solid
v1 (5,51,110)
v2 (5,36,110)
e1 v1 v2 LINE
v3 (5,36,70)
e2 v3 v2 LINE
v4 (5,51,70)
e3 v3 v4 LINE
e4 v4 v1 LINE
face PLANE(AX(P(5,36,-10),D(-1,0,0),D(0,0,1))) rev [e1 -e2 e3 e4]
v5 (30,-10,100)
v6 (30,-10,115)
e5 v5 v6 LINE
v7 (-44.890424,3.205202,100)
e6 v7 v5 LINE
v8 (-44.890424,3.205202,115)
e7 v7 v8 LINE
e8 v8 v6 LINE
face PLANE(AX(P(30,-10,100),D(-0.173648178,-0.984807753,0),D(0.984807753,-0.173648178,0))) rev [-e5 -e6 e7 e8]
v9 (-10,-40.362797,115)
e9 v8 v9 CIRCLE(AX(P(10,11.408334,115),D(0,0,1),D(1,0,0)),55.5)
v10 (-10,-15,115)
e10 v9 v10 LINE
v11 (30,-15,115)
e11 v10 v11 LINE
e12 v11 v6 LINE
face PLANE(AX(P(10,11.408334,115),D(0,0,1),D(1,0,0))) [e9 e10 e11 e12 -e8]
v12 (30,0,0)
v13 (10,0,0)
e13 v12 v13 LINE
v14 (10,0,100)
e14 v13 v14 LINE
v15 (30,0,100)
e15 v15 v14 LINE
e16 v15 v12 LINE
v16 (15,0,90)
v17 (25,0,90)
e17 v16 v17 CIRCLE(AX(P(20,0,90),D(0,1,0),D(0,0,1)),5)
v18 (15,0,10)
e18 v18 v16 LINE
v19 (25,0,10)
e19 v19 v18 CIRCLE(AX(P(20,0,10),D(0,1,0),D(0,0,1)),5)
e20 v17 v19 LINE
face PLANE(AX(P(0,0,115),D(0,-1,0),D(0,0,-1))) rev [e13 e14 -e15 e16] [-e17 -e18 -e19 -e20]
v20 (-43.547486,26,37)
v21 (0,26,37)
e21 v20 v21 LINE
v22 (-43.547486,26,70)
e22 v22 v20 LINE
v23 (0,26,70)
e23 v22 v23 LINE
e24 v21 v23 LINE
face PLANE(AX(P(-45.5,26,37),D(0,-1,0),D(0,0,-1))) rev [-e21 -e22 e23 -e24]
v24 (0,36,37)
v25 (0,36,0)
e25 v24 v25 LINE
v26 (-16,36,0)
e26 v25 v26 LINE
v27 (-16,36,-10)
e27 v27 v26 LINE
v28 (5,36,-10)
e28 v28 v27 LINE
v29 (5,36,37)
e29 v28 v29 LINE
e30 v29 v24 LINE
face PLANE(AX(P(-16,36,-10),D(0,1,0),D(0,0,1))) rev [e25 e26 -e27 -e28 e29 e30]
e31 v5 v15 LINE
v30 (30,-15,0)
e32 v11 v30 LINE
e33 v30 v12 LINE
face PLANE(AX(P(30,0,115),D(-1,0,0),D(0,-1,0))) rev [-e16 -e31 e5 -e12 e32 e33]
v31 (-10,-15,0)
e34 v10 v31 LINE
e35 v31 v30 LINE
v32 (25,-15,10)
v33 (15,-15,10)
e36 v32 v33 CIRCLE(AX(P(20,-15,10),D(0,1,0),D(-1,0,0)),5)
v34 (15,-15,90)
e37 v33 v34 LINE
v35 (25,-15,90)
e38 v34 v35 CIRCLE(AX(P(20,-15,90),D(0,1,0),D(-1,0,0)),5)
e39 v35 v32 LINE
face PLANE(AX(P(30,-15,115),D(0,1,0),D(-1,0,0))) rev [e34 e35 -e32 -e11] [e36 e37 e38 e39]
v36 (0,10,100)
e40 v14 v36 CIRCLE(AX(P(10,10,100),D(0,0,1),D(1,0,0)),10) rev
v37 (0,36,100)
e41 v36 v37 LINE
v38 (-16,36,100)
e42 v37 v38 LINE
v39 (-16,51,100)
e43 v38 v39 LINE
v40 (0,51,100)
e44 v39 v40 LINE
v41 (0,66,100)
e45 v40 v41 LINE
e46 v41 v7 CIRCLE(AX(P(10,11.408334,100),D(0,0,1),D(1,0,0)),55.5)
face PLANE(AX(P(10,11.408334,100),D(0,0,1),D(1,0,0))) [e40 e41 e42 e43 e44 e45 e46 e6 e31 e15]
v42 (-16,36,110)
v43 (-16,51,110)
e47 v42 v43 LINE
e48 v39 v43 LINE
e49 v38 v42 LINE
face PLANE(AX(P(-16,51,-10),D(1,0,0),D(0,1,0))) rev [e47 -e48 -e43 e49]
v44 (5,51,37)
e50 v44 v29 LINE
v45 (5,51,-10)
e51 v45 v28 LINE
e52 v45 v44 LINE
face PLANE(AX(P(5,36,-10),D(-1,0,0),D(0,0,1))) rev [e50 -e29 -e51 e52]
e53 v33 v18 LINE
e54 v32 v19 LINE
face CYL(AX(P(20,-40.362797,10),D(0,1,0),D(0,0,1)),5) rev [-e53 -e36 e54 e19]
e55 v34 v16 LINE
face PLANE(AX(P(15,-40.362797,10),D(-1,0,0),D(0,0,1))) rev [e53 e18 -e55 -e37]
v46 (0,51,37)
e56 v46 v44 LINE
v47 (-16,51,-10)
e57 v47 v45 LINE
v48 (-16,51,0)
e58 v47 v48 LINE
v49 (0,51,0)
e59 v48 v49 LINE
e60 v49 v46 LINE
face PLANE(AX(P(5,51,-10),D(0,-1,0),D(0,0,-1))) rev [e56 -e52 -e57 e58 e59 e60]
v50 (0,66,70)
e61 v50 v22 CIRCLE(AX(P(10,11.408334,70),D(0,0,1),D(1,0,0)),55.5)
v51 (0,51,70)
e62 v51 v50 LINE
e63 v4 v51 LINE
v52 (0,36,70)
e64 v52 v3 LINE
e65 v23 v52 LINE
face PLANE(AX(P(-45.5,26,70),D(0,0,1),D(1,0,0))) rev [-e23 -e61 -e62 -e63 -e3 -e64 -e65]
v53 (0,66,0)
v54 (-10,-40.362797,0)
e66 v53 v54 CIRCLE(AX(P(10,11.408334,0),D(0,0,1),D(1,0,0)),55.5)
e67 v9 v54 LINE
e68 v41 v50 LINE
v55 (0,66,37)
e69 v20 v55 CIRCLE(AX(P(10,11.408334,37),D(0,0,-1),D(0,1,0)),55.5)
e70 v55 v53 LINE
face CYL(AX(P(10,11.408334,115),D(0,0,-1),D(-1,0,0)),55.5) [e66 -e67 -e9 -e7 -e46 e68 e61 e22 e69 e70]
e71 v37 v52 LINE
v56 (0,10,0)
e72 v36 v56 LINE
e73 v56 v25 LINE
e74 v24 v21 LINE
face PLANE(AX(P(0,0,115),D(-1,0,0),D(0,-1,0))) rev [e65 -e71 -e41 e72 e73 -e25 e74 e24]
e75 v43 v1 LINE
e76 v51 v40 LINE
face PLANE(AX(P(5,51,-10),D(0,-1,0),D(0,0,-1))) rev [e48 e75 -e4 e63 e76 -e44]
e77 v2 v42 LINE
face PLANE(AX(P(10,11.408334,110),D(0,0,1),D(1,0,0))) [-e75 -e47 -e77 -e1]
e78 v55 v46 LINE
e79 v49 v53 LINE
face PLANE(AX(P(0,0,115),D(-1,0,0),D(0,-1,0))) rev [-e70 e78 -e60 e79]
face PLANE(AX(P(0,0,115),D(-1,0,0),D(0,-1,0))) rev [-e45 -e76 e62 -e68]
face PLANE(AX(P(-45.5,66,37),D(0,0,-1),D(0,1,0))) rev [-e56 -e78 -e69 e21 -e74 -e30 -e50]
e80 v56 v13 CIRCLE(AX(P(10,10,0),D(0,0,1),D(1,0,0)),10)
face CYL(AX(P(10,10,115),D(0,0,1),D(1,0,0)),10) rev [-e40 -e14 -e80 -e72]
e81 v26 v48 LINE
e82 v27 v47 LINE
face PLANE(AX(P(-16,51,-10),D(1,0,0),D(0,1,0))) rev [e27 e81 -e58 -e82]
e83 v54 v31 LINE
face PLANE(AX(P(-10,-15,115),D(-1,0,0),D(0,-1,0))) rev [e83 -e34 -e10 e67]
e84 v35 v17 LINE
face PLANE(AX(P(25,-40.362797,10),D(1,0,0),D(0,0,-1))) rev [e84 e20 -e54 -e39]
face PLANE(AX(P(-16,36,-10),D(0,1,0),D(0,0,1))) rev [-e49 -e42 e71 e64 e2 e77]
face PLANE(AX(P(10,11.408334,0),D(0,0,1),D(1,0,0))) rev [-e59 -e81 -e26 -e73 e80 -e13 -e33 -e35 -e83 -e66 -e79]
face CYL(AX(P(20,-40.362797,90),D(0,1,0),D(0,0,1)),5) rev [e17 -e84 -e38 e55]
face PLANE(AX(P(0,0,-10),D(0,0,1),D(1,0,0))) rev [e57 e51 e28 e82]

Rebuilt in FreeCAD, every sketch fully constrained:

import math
import FreeCAD as App
import Part
import Sketcher
from FreeCAD import Vector
Q = App.Units.Quantity


def edges_at(feature, points):
    """Names of the edges that pass closest to the given points."""
    edges = feature.Shape.Edges
    near = lambda p: min(range(len(edges)), key=lambda i: edges[i].distToShape(Part.Vertex(*p))[0])
    return sorted({f"Edge{near(p) + 1}" for p in points})


def add_polygon(sketch, points):
    """Adds a closed chain of lines whose ends are joined by coincident constraints."""
    first, n = sketch.GeometryCount, len(points)
    for a, b in zip(points, points[1:] + points[:1]):
        sketch.addGeometry(Part.LineSegment(App.Vector(*a, 0), App.Vector(*b, 0)), False)
    for i in range(n):
        sketch.addConstraint(Sketcher.Constraint("Coincident", first + i, 2, first + (i + 1) % n, 1))

doc = App.newDocument("Part")
body = doc.addObject("PartDesign::Body", "Body")

sketch1 = doc.addObject("Sketcher::SketchObject", "Sketch")
body.addObject(sketch1)
sketch1.AttachmentSupport = (doc.XY_Plane, [""])
sketch1.MapMode = "FlatFace"
sketch1.addGeometry(Part.LineSegment(Vector(0, 0, 0), Vector(0, 66, 0)), False)
sketch1.addGeometry(Part.ArcOfCircle(Part.Circle(Vector(10, 11, 0), Vector(0, 0, 1), 56), math.radians(100), math.radians(249)), False)
sketch1.addGeometry(Part.LineSegment(Vector(-10, -40, 0), Vector(-10, -15, 0)), False)
sketch1.addGeometry(Part.LineSegment(Vector(-10, -15, 0), Vector(30, -15, 0)), False)
sketch1.addGeometry(Part.LineSegment(Vector(30, -15, 0), Vector(30, 0, 0)), False)
sketch1.addGeometry(Part.LineSegment(Vector(30, 0, 0), Vector(0, 0, 0)), False)
sketch1.addConstraint(Sketcher.Constraint("Coincident", 0, 2, 1, 1))
sketch1.addConstraint(Sketcher.Constraint("Coincident", 1, 2, 2, 1))
sketch1.addConstraint(Sketcher.Constraint("Coincident", 2, 2, 3, 1))
sketch1.addConstraint(Sketcher.Constraint("Coincident", 3, 2, 4, 1))
sketch1.addConstraint(Sketcher.Constraint("Coincident", 4, 2, 5, 1))
sketch1.addConstraint(Sketcher.Constraint("Coincident", 5, 2, 0, 1))
sketch1.addConstraint(Sketcher.Constraint("Vertical", 0))
sketch1.addConstraint(Sketcher.Constraint("Vertical", 2))
sketch1.addConstraint(Sketcher.Constraint("Horizontal", 3))
sketch1.addConstraint(Sketcher.Constraint("Vertical", 4))
sketch1.addConstraint(Sketcher.Constraint("Horizontal", 5))
sketch1.addConstraint(Sketcher.Constraint("Coincident", 5, 2, -1, 1))
sketch1.addConstraint(Sketcher.Constraint("Radius", 1, 55.5))
sketch1.addConstraint(Sketcher.Constraint("DistanceX", 3, 1, 3, 2, 40.0))
sketch1.addConstraint(Sketcher.Constraint("DistanceX", 5, 2, 5, 1, 30.0))
sketch1.addConstraint(Sketcher.Constraint("DistanceY", 0, 1, 0, 2, 66.0))
sketch1.addConstraint(Sketcher.Constraint("DistanceY", 4, 1, 4, 2, 15.0))
sketch1.addConstraint(Sketcher.Constraint("DistanceX", -1, 1, 1, 3, 10.0))
pad1 = doc.addObject("PartDesign::Pad", "Pad")
body.addObject(pad1)
pad1.Profile = sketch1
pad1.Length = 115

sketch2 = doc.addObject("Sketcher::SketchObject", "Sketch001")
body.addObject(sketch2)
sketch2.AttachmentSupport = (doc.XY_Plane, [""])
sketch2.MapMode = "FlatFace"
sketch2.AttachmentOffset = App.Placement(Vector(0, 0, 115), App.Rotation())
sketch2.addGeometry(Part.LineSegment(Vector(-45, 3, 0), Vector(30, -10, 0)), False)
sketch2.addGeometry(Part.LineSegment(Vector(30, -10, 0), Vector(30, 0, 0)), False)
sketch2.addGeometry(Part.LineSegment(Vector(30, 0, 0), Vector(0, 0, 0)), False)
sketch2.addGeometry(Part.LineSegment(Vector(0, 0, 0), Vector(0, 66, 0)), False)
sketch2.addGeometry(Part.ArcOfCircle(Part.Circle(Vector(10, 11, 0), Vector(0, 0, 1), 56), math.radians(100), math.radians(188)), False)
sketch2.addConstraint(Sketcher.Constraint("Coincident", 0, 2, 1, 1))
sketch2.addConstraint(Sketcher.Constraint("Coincident", 1, 2, 2, 1))
sketch2.addConstraint(Sketcher.Constraint("Coincident", 2, 2, 3, 1))
sketch2.addConstraint(Sketcher.Constraint("Coincident", 3, 2, 4, 1))
sketch2.addConstraint(Sketcher.Constraint("Coincident", 4, 2, 0, 1))
sketch2.addConstraint(Sketcher.Constraint("Vertical", 1))
sketch2.addConstraint(Sketcher.Constraint("Horizontal", 2))
sketch2.addConstraint(Sketcher.Constraint("Vertical", 3))
sketch2.addConstraint(Sketcher.Constraint("Coincident", 2, 2, -1, 1))
sketch2.addConstraint(Sketcher.Constraint("Radius", 4, 55.5))
sketch2.addConstraint(Sketcher.Constraint("DistanceX", 2, 2, 2, 1, 30.0))
sketch2.addConstraint(Sketcher.Constraint("DistanceY", 1, 1, 1, 2, 10.0))
sketch2.addConstraint(Sketcher.Constraint("DistanceY", 3, 1, 3, 2, 66.0))
sketch2.addConstraint(Sketcher.Constraint("Angle", 0, Q("-10 deg")))
sketch2.addConstraint(Sketcher.Constraint("DistanceX", -1, 1, 4, 3, 10.0))
pocket1 = doc.addObject("PartDesign::Pocket", "Pocket")
body.addObject(pocket1)
pocket1.Profile = sketch2
pocket1.Length = 15

sketch3 = doc.addObject("Sketcher::SketchObject", "Sketch002")
body.addObject(sketch3)
sketch3.AttachmentSupport = (doc.XY_Plane, [""])
sketch3.MapMode = "FlatFace"
add_polygon(sketch3, [(5, 51), (5, 36), (-16, 36), (-16, 51)])
sketch3.addConstraint(Sketcher.Constraint("Vertical", 0))
sketch3.addConstraint(Sketcher.Constraint("Horizontal", 1))
sketch3.addConstraint(Sketcher.Constraint("Vertical", 2))
sketch3.addConstraint(Sketcher.Constraint("Horizontal", 3))
sketch3.addConstraint(Sketcher.Constraint("DistanceX", 1, 2, 1, 1, 21.0))
sketch3.addConstraint(Sketcher.Constraint("DistanceY", 0, 2, 0, 1, 15.0))
sketch3.addConstraint(Sketcher.Constraint("DistanceX", -1, 1, 0, 2, 5.0))
sketch3.addConstraint(Sketcher.Constraint("DistanceY", -1, 1, 0, 2, 36.0))
pad2 = doc.addObject("PartDesign::Pad", "Pad001")
body.addObject(pad2)
pad2.Profile = sketch3
pad2.Type = "TwoLengths"
pad2.Length = 10
pad2.Length2 = 110
pad2.Reversed = True

sketch4 = doc.addObject("Sketcher::SketchObject", "Sketch003")
body.addObject(sketch4)
sketch4.AttachmentSupport = (doc.YZ_Plane, [""])
sketch4.MapMode = "FlatFace"
add_polygon(sketch4, [(66, 70), (26, 70), (26, 37), (66, 37)])
sketch4.addConstraint(Sketcher.Constraint("Horizontal", 0))
sketch4.addConstraint(Sketcher.Constraint("Vertical", 1))
sketch4.addConstraint(Sketcher.Constraint("Horizontal", 2))
sketch4.addConstraint(Sketcher.Constraint("Vertical", 3))
sketch4.addConstraint(Sketcher.Constraint("DistanceX", 0, 2, 0, 1, 40.0))
sketch4.addConstraint(Sketcher.Constraint("DistanceY", 1, 2, 1, 1, 33.0))
sketch4.addConstraint(Sketcher.Constraint("DistanceX", -1, 1, 0, 2, 26.0))
sketch4.addConstraint(Sketcher.Constraint("DistanceY", -1, 1, 0, 2, 70.0))
pocket2 = doc.addObject("PartDesign::Pocket", "Pocket001")
body.addObject(pocket2)
pocket2.Profile = sketch4
pocket2.Type = "ThroughAll"
pocket2.Midplane = True

sketch5 = doc.addObject("Sketcher::SketchObject", "Sketch004")
body.addObject(sketch5)
sketch5.AttachmentSupport = (doc.XZ_Plane, [""])
sketch5.MapMode = "FlatFace"
sketch5.addGeometry(Part.LineSegment(Vector(25, 90, 0), Vector(25, 10, 0)), False)
sketch5.addGeometry(Part.ArcOfCircle(Part.Circle(Vector(20, 10, 0), Vector(0, 0, 1), 5), math.radians(180), math.radians(360)), False)
sketch5.addGeometry(Part.LineSegment(Vector(15, 10, 0), Vector(15, 90, 0)), False)
sketch5.addGeometry(Part.ArcOfCircle(Part.Circle(Vector(20, 90, 0), Vector(0, 0, 1), 5), math.radians(0), math.radians(180)), False)
sketch5.addConstraint(Sketcher.Constraint("Tangent", 0, 2, 1, 2))
sketch5.addConstraint(Sketcher.Constraint("Tangent", 1, 1, 2, 1))
sketch5.addConstraint(Sketcher.Constraint("Tangent", 2, 2, 3, 2))
sketch5.addConstraint(Sketcher.Constraint("Tangent", 3, 1, 0, 1))
sketch5.addConstraint(Sketcher.Constraint("Vertical", 0))
sketch5.addConstraint(Sketcher.Constraint("Vertical", 2))
sketch5.addConstraint(Sketcher.Constraint("Radius", 1, 5.0))
sketch5.addConstraint(Sketcher.Constraint("DistanceY", 0, 2, 0, 1, 80.0))
sketch5.addConstraint(Sketcher.Constraint("DistanceX", -1, 1, 1, 3, 20.0))
sketch5.addConstraint(Sketcher.Constraint("DistanceY", -1, 1, 1, 3, 10.0))
pocket3 = doc.addObject("PartDesign::Pocket", "Pocket002")
body.addObject(pocket3)
pocket3.Profile = sketch5
pocket3.Type = "ThroughAll"
pocket3.Midplane = True
doc.recompute()

fillet = doc.addObject("PartDesign::Fillet", "Fillet")
body.addObject(fillet)
fillet.Base = (pocket3, edges_at(pocket3, [(0, 0, 50)]))
fillet.Radius = 10

doc.recompute()
